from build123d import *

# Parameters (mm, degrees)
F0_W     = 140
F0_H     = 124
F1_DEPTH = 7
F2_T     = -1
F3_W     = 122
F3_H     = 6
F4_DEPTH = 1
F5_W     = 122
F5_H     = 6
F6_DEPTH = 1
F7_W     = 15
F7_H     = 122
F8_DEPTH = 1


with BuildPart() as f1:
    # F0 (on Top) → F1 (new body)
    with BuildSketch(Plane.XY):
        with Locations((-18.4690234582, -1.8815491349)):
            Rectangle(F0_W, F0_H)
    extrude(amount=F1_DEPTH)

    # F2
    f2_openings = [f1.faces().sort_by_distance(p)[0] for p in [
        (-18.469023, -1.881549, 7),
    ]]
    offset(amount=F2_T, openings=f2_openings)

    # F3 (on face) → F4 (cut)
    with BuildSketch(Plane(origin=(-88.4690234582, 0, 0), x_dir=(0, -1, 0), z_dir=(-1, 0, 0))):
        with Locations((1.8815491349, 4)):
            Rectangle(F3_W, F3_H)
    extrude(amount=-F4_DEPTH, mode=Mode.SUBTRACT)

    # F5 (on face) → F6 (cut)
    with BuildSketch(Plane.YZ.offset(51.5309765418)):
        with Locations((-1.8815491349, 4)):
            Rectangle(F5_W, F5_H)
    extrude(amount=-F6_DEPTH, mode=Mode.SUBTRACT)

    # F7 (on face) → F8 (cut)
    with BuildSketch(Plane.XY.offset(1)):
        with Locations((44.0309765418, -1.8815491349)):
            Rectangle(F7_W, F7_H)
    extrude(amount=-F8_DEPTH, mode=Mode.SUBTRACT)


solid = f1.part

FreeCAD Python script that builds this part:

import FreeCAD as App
import Part
import Sketcher
Q = App.Units.Quantity


def faces_at(feature, points):
    """Names of the faces that lie closest to the given points."""
    faces = feature.Shape.Faces
    near = lambda p: min(range(len(faces)), key=lambda i: faces[i].distToShape(Part.Vertex(*p))[0])
    return sorted({f"Face{near(p) + 1}" for p in points})

doc = App.newDocument("Part")
params = doc.addObject("Spreadsheet::Sheet", "Params")
for row, (alias, value) in enumerate([
    ("sketch1_width", "140 mm"),
    ("sketch1_height", "124 mm"),
    ("pad1_length", "7 mm"),
    ("thickness_wall", "1 mm"),
    ("sketch2_width", "122 mm"),
    ("sketch2_height", "6 mm"),
    ("pocket1_length", "1 mm"),
    ("sketch3_width", "122 mm"),
    ("sketch3_height", "6 mm"),
    ("pocket2_length", "1 mm"),
    ("sketch4_width", "15 mm"),
    ("sketch4_height", "122 mm"),
    ("pocket3_length", "1 mm"),
], start=1):
    params.set(f"A{row}", alias)
    params.set(f"B{row}", "=" + value)
    params.setAlias(f"B{row}", alias)

body = doc.addObject("PartDesign::Body", "Body")

# Sketch on XY plane
sketch1 = doc.addObject("Sketcher::SketchObject", "Sketch")
body.addObject(sketch1)
sketch1.AttachmentSupport = (doc.XY_Plane, [""])
sketch1.MapMode = "FlatFace"
sketch1.addGeometry([
    Part.LineSegment(App.Vector(-88, 60, 0), App.Vector(-88, -64, 0)),
    Part.LineSegment(App.Vector(-88, -64, 0), App.Vector(52, -64, 0)),
    Part.LineSegment(App.Vector(52, -64, 0), App.Vector(52, 60, 0)),
    Part.LineSegment(App.Vector(52, 60, 0), App.Vector(-88, 60, 0)),
], False)
sketch1.addConstraint([
    Sketcher.Constraint("Coincident", 0, 2, 1, 1),
    Sketcher.Constraint("Coincident", 1, 2, 2, 1),
    Sketcher.Constraint("Coincident", 2, 2, 3, 1),
    Sketcher.Constraint("Coincident", 3, 2, 0, 1),
    Sketcher.Constraint("Vertical", 0),
    Sketcher.Constraint("Horizontal", 1),
    Sketcher.Constraint("Vertical", 2),
    Sketcher.Constraint("Horizontal", 3),
    Sketcher.Constraint("DistanceX", 1, 1, 1, 2, Q("140 mm")),
    Sketcher.Constraint("DistanceY", 0, 2, 0, 1, Q("124 mm")),
    Sketcher.Constraint("DistanceY", 0, 2, -1, 1, Q("63.881549 mm")),
    Sketcher.Constraint("DistanceX", 0, 2, -1, 1, Q("88.469023 mm")),
])
sketch1.setExpression("Constraints[8]", "Params.sketch1_width")
sketch1.setExpression("Constraints[9]", "Params.sketch1_height")
pad1 = doc.addObject("PartDesign::Pad", "Pad")
body.addObject(pad1)
pad1.Profile = sketch1
pad1.setExpression("Length", "Params.pad1_length")
doc.recompute()

thickness = doc.addObject("PartDesign::Thickness", "Thickness")
body.addObject(thickness)
thickness.Base = (pad1, faces_at(pad1, [(-18.469, -1.882, 7)]))
thickness.setExpression("Value", "Params.thickness_wall")
thickness.Reversed = True
thickness.Join = "Arc"

# Sketch on YZ plane
sketch2 = doc.addObject("Sketcher::SketchObject", "Sketch001")
body.addObject(sketch2)
sketch2.AttachmentSupport = (doc.YZ_Plane, [""])
sketch2.MapMode = "FlatFace"
sketch2.AttachmentOffset = App.Placement(App.Vector(0, 0, -88.469023), App.Rotation())
sketch2.addGeometry([
    Part.LineSegment(App.Vector(59, 7, 0), App.Vector(59, 1, 0)),
    Part.LineSegment(App.Vector(59, 1, 0), App.Vector(-63, 1, 0)),
    Part.LineSegment(App.Vector(-63, 1, 0), App.Vector(-63, 7, 0)),
    Part.LineSegment(App.Vector(-63, 7, 0), App.Vector(59, 7, 0)),
], False)
sketch2.addConstraint([
    Sketcher.Constraint("Coincident", 0, 2, 1, 1),
    Sketcher.Constraint("Coincident", 1, 2, 2, 1),
    Sketcher.Constraint("Coincident", 2, 2, 3, 1),
    Sketcher.Constraint("Coincident", 3, 2, 0, 1),
    Sketcher.Constraint("Vertical", 0),
    Sketcher.Constraint("Horizontal", 1),
    Sketcher.Constraint("Vertical", 2),
    Sketcher.Constraint("Horizontal", 3),
    Sketcher.Constraint("DistanceX", 1, 2, 1, 1, Q("122 mm")),
    Sketcher.Constraint("DistanceY", 0, 2, 0, 1, Q("6 mm")),
    Sketcher.Constraint("DistanceY", -1, 1, 0, 2, Q("1 mm")),
    Sketcher.Constraint("DistanceX", -1, 1, 0, 2, Q("59.118451 mm")),
])
sketch2.setExpression("Constraints[8]", "Params.sketch2_width")
sketch2.setExpression("Constraints[9]", "Params.sketch2_height")
pocket1 = doc.addObject("PartDesign::Pocket", "Pocket")
body.addObject(pocket1)
pocket1.Profile = sketch2
pocket1.setExpression("Length", "Params.pocket1_length")
pocket1.Reversed = True

# Sketch on YZ plane
sketch3 = doc.addObject("Sketcher::SketchObject", "Sketch002")
body.addObject(sketch3)
sketch3.AttachmentSupport = (doc.YZ_Plane, [""])
sketch3.MapMode = "FlatFace"
sketch3.AttachmentOffset = App.Placement(App.Vector(0, 0, 51.530977), App.Rotation())
sketch3.addGeometry([
    Part.LineSegment(App.Vector(-63, 7, 0), App.Vector(-63, 1, 0)),
    Part.LineSegment(App.Vector(-63, 1, 0), App.Vector(59, 1, 0)),
    Part.LineSegment(App.Vector(59, 1, 0), App.Vector(59, 7, 0)),
    Part.LineSegment(App.Vector(59, 7, 0), App.Vector(-63, 7, 0)),
], False)
sketch3.addConstraint([
    Sketcher.Constraint("Coincident", 0, 2, 1, 1),
    Sketcher.Constraint("Coincident", 1, 2, 2, 1),
    Sketcher.Constraint("Coincident", 2, 2, 3, 1),
    Sketcher.Constraint("Coincident", 3, 2, 0, 1),
    Sketcher.Constraint("Vertical", 0),
    Sketcher.Constraint("Horizontal", 1),
    Sketcher.Constraint("Vertical", 2),
    Sketcher.Constraint("Horizontal", 3),
    Sketcher.Constraint("DistanceX", 1, 1, 1, 2, Q("122 mm")),
    Sketcher.Constraint("DistanceY", 0, 2, 0, 1, Q("6 mm")),
    Sketcher.Constraint("DistanceY", -1, 1, 0, 2, Q("1 mm")),
    Sketcher.Constraint("DistanceX", 0, 2, -1, 1, Q("62.881549 mm")),
])
sketch3.setExpression("Constraints[8]", "Params.sketch3_width")
sketch3.setExpression("Constraints[9]", "Params.sketch3_height")
pocket2 = doc.addObject("PartDesign::Pocket", "Pocket001")
body.addObject(pocket2)
pocket2.Profile = sketch3
pocket2.setExpression("Length", "Params.pocket2_length")

# Sketch on XY plane
sketch4 = doc.addObject("Sketcher::SketchObject", "Sketch003")
body.addObject(sketch4)
sketch4.AttachmentSupport = (doc.XY_Plane, [""])
sketch4.MapMode = "FlatFace"
sketch4.AttachmentOffset = App.Placement(App.Vector(0, 0, 1), App.Rotation())
sketch4.addGeometry([
    Part.LineSegment(App.Vector(37, 59, 0), App.Vector(37, -63, 0)),
    Part.LineSegment(App.Vector(37, -63, 0), App.Vector(52, -63, 0)),
    Part.LineSegment(App.Vector(52, -63, 0), App.Vector(52, 59, 0)),
    Part.LineSegment(App.Vector(52, 59, 0), App.Vector(37, 59, 0)),
], False)
sketch4.addConstraint([
    Sketcher.Constraint("Coincident", 0, 2, 1, 1),
    Sketcher.Constraint("Coincident", 1, 2, 2, 1),
    Sketcher.Constraint("Coincident", 2, 2, 3, 1),
    Sketcher.Constraint("Coincident", 3, 2, 0, 1),
    Sketcher.Constraint("Vertical", 0),
    Sketcher.Constraint("Horizontal", 1),
    Sketcher.Constraint("Vertical", 2),
    Sketcher.Constraint("Horizontal", 3),
    Sketcher.Constraint("DistanceX", 1, 1, 1, 2, Q("15 mm")),
    Sketcher.Constraint("DistanceY", 0, 2, 0, 1, Q("122 mm")),
    Sketcher.Constraint("DistanceY", 0, 2, -1, 1, Q("62.881549 mm")),
    Sketcher.Constraint("DistanceX", -1, 1, 0, 2, Q("36.530977 mm")),
])
sketch4.setExpression("Constraints[8]", "Params.sketch4_width")
sketch4.setExpression("Constraints[9]", "Params.sketch4_height")
pocket3 = doc.addObject("PartDesign::Pocket", "Pocket002")
body.addObject(pocket3)
pocket3.Profile = sketch4
pocket3.setExpression("Length", "Params.pocket3_length")

doc.recompute()
